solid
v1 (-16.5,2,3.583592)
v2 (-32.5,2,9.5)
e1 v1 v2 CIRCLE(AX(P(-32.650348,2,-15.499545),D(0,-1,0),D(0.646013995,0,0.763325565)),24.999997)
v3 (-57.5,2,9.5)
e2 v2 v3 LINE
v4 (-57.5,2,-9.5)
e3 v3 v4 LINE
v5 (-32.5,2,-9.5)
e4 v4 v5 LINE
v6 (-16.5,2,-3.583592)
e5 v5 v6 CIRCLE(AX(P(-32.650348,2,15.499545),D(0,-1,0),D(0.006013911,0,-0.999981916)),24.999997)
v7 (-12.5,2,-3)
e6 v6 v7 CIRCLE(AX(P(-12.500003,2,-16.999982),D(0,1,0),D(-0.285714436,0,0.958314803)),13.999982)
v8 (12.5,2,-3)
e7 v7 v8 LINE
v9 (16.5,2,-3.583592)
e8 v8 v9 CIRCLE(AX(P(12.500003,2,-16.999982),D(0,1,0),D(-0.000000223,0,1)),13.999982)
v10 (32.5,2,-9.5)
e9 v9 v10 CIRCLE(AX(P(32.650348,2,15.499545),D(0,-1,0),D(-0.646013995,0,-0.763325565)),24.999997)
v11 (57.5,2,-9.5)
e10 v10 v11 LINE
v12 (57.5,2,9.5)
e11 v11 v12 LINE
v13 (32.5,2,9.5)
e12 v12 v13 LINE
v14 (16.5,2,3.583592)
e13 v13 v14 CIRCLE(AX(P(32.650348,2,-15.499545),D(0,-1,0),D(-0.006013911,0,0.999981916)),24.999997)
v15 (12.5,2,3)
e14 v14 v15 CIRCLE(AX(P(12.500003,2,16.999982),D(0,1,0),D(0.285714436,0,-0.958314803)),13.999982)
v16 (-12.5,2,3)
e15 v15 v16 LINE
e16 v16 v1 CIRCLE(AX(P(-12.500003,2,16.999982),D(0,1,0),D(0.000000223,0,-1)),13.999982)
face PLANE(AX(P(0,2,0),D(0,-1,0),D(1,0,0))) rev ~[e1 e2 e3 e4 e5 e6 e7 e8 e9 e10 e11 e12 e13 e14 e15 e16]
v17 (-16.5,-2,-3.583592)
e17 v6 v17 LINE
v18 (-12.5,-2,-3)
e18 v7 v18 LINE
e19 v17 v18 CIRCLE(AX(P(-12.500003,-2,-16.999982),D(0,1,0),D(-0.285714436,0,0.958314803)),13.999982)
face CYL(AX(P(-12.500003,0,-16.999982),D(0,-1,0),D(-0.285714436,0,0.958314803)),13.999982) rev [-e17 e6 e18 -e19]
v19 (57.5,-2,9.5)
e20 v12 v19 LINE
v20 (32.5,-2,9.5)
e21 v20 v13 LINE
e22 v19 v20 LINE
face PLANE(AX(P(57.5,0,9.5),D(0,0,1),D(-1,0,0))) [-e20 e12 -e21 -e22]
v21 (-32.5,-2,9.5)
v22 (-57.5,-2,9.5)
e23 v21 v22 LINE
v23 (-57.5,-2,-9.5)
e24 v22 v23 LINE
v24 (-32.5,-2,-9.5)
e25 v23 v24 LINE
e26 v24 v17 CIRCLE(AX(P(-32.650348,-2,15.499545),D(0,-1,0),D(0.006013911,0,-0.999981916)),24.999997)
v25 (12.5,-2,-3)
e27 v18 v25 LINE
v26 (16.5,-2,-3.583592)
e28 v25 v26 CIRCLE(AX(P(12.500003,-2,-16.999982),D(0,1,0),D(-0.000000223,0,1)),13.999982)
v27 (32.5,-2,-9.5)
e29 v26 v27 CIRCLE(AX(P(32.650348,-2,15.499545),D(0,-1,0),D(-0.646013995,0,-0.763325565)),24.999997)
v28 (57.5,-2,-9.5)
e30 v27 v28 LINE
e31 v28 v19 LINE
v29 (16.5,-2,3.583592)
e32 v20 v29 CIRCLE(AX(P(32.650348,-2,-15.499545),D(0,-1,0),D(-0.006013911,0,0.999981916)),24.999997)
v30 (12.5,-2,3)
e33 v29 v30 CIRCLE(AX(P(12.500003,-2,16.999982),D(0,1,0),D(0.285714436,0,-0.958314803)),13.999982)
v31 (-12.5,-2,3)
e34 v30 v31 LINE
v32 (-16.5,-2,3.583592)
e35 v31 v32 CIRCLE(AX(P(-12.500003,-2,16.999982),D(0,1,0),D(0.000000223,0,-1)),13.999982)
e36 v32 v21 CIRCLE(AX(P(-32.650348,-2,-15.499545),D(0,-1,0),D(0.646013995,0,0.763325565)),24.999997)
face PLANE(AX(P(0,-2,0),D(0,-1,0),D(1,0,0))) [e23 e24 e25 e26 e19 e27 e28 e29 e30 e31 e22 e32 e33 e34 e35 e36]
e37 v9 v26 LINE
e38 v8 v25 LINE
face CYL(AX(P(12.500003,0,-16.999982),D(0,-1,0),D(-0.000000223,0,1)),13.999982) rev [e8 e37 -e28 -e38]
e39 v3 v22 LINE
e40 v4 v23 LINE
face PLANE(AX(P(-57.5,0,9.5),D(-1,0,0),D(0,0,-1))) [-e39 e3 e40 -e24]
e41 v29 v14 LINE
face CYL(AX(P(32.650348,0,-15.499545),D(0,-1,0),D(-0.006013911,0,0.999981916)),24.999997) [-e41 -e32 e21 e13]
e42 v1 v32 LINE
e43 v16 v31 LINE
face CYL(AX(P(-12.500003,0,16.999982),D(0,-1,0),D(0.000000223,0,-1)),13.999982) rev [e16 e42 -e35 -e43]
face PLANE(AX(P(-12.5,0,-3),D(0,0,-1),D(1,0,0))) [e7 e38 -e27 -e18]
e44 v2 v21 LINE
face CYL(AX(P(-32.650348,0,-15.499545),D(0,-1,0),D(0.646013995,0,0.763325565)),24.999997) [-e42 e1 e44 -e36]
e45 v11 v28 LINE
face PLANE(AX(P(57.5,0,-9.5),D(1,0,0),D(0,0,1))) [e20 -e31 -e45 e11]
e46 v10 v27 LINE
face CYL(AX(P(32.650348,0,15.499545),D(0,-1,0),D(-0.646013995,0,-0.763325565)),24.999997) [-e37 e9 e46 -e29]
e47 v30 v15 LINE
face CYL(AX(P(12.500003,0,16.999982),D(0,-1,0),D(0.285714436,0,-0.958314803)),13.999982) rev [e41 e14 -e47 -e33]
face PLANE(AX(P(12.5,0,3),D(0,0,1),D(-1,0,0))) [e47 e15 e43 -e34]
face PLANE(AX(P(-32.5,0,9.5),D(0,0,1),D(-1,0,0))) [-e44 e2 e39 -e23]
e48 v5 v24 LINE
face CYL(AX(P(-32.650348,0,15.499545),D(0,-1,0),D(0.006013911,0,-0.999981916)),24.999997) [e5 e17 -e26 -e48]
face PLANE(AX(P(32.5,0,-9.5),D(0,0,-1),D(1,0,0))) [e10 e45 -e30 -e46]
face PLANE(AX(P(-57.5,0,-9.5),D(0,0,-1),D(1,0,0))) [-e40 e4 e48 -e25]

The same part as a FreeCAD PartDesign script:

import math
import FreeCAD as App
import Part
import Sketcher

V = App.Vector
Q = App.Units.Quantity

doc = App.newDocument("Part")
params = doc.addObject("Spreadsheet::Sheet", "Params")
for row, (alias, value) in enumerate([
    ("sketch1_width", "25 mm"),
    ("sketch1_height", "19 mm"),
    ("pad1_length", "4 mm"),
], start=1):
    params.set(f"A{row}", alias)
    params.set(f"B{row}", "=" + value)
    params.setAlias(f"B{row}", alias)

body = doc.addObject("PartDesign::Body", "Body")

sketch1 = body.newObject("Sketcher::SketchObject", "Sketch")
sketch1.AttachmentSupport = (doc.getObject("XZ_Plane"), [""])
sketch1.MapMode = "FlatFace"
sketch1.addGeometry(Part.LineSegment(V(12.5, 3, 0), V(-12.5, 3, 0)), False)
sketch1.addGeometry(Part.ArcOfCircle(Part.Circle(V(-12.5, 17, 0), V(0, 0, 1), 14), math.radians(-106.6), math.radians(-90)), False)
sketch1.addGeometry(Part.ArcOfCircle(Part.Circle(V(-32.7, -15.5, 0), V(0, 0, 1), 25), math.radians(50), math.radians(90)), False)
sketch1.addGeometry(Part.LineSegment(V(-32.5, 9.5, 0), V(-57.5, 9.5, 0)), False)
sketch1.addGeometry(Part.LineSegment(V(-57.5, 9.5, 0), V(-57.5, -9.5, 0)), False)
sketch1.addGeometry(Part.LineSegment(V(-57.5, -9.5, 0), V(-32.5, -9.5, 0)), False)
sketch1.addGeometry(Part.ArcOfCircle(Part.Circle(V(-32.7, 15.5, 0), V(0, 0, 1), 25), math.radians(-90), math.radians(-50)), False)
sketch1.addGeometry(Part.ArcOfCircle(Part.Circle(V(-12.5, -17, 0), V(0, 0, 1), 14), math.radians(90), math.radians(106.6)), False)
sketch1.addGeometry(Part.LineSegment(V(-12.5, -3, 0), V(12.5, -3, 0)), False)
sketch1.addGeometry(Part.ArcOfCircle(Part.Circle(V(12.5, -17, 0), V(0, 0, 1), 14), math.radians(73.4), math.radians(90)), False)
sketch1.addGeometry(Part.ArcOfCircle(Part.Circle(V(32.7, 15.5, 0), V(0, 0, 1), 25), math.radians(-130), math.radians(-90)), False)
sketch1.addGeometry(Part.LineSegment(V(32.5, -9.5, 0), V(57.5, -9.5, 0)), False)
sketch1.addGeometry(Part.LineSegment(V(57.5, -9.5, 0), V(57.5, 9.5, 0)), False)
sketch1.addGeometry(Part.LineSegment(V(57.5, 9.5, 0), V(32.5, 9.5, 0)), False)
sketch1.addGeometry(Part.ArcOfCircle(Part.Circle(V(32.7, -15.5, 0), V(0, 0, 1), 25), math.radians(90), math.radians(130)), False)
sketch1.addGeometry(Part.ArcOfCircle(Part.Circle(V(12.5, 17, 0), V(0, 0, 1), 14), math.radians(-90), math.radians(-73.4)), False)
sketch1.addConstraint(Sketcher.Constraint("Tangent", 0, 2, 1, 2))
sketch1.addConstraint(Sketcher.Constraint("Coincident", 1, 1, 2, 1))
sketch1.addConstraint(Sketcher.Constraint("Coincident", 2, 2, 3, 1))
sketch1.addConstraint(Sketcher.Constraint("Coincident", 3, 2, 4, 1))
sketch1.addConstraint(Sketcher.Constraint("Coincident", 4, 2, 5, 1))
sketch1.addConstraint(Sketcher.Constraint("Coincident", 5, 2, 6, 1))
sketch1.addConstraint(Sketcher.Constraint("Coincident", 6, 2, 7, 2))
sketch1.addConstraint(Sketcher.Constraint("Tangent", 7, 1, 8, 1))
sketch1.addConstraint(Sketcher.Constraint("Tangent", 8, 2, 9, 2))
sketch1.addConstraint(Sketcher.Constraint("Coincident", 9, 1, 10, 1))
sketch1.addConstraint(Sketcher.Constraint("Coincident", 10, 2, 11, 1))
sketch1.addConstraint(Sketcher.Constraint("Coincident", 11, 2, 12, 1))
sketch1.addConstraint(Sketcher.Constraint("Coincident", 12, 2, 13, 1))
sketch1.addConstraint(Sketcher.Constraint("Coincident", 13, 2, 14, 1))
sketch1.addConstraint(Sketcher.Constraint("Coincident", 14, 2, 15, 2))
sketch1.addConstraint(Sketcher.Constraint("Tangent", 15, 1, 0, 1))
sketch1.addConstraint(Sketcher.Constraint("Horizontal", 0))
sketch1.addConstraint(Sketcher.Constraint("Horizontal", 3))
sketch1.addConstraint(Sketcher.Constraint("Vertical", 4))
sketch1.addConstraint(Sketcher.Constraint("Horizontal", 5))
sketch1.addConstraint(Sketcher.Constraint("Horizontal", 8))
sketch1.addConstraint(Sketcher.Constraint("Horizontal", 11))
sketch1.addConstraint(Sketcher.Constraint("Vertical", 12))
sketch1.addConstraint(Sketcher.Constraint("Horizontal", 13))
sketch1.addConstraint(Sketcher.Constraint("Equal", 2, 6))
sketch1.addConstraint(Sketcher.Constraint("Equal", 1, 7))
sketch1.addConstraint(Sketcher.Constraint("Equal", 7, 9))
sketch1.addConstraint(Sketcher.Constraint("Equal", 6, 10))
sketch1.addConstraint(Sketcher.Constraint("Equal", 10, 14))
sketch1.addConstraint(Sketcher.Constraint("Equal", 9, 15))
sketch1.addConstraint(Sketcher.Constraint("Symmetric", 1, 3, 9, 3, -1, 1))
sketch1.addConstraint(Sketcher.Constraint("Symmetric", 2, 3, 10, 3, -1, 1))
sketch1.addConstraint(Sketcher.Constraint("Symmetric", 6, 3, 14, 3, -1, 1))
sketch1.addConstraint(Sketcher.Constraint("Symmetric", 3, 2, 11, 2, -1, 1))
sketch1.addConstraint(Sketcher.Constraint("Symmetric", 6, 3, 10, 3, -2))
sketch1.addConstraint(Sketcher.Constraint("Horizontal", 6, 2, 9, 1))
sketch1.addConstraint(Sketcher.Constraint("Horizontal", 5, 2, 10, 2))
sketch1.addConstraint(Sketcher.Constraint("Horizontal", 3, 2, 12, 2))
sketch1.addConstraint(Sketcher.Constraint("Horizontal", 1, 1, 14, 2))
sketch1.addConstraint(Sketcher.Constraint("Equal", 0, 3))
sketch1.addConstraint(Sketcher.Constraint("DistanceX", 0, 2, 0, 1, Q("25 mm")))
sketch1.addConstraint(Sketcher.Constraint("DistanceY", 4, 2, 4, 1, Q("19 mm")))
sketch1.addConstraint(Sketcher.Constraint("DistanceY", -1, 1, 0, 2, Q("3 mm")))
sketch1.addConstraint(Sketcher.Constraint("DistanceX", 1, 1, 0, 2, Q("4 mm")))
sketch1.addConstraint(Sketcher.Constraint("DistanceX", 2, 2, 1, 1, Q("16 mm")))
sketch1.addConstraint(Sketcher.Constraint("Radius", 1, Q("13.999982 mm")))
sketch1.addConstraint(Sketcher.Constraint("Radius", 2, Q("24.999997 mm")))
sketch1.setExpression("Constraints[40]", "Params.sketch1_width")
sketch1.setExpression("Constraints[41]", "Params.sketch1_height")
pad1 = body.newObject("PartDesign::Pad", "Pad")
pad1.Profile = sketch1
pad1.setExpression("Length", "Params.pad1_length")
pad1.Midplane = True

doc.recompute()
